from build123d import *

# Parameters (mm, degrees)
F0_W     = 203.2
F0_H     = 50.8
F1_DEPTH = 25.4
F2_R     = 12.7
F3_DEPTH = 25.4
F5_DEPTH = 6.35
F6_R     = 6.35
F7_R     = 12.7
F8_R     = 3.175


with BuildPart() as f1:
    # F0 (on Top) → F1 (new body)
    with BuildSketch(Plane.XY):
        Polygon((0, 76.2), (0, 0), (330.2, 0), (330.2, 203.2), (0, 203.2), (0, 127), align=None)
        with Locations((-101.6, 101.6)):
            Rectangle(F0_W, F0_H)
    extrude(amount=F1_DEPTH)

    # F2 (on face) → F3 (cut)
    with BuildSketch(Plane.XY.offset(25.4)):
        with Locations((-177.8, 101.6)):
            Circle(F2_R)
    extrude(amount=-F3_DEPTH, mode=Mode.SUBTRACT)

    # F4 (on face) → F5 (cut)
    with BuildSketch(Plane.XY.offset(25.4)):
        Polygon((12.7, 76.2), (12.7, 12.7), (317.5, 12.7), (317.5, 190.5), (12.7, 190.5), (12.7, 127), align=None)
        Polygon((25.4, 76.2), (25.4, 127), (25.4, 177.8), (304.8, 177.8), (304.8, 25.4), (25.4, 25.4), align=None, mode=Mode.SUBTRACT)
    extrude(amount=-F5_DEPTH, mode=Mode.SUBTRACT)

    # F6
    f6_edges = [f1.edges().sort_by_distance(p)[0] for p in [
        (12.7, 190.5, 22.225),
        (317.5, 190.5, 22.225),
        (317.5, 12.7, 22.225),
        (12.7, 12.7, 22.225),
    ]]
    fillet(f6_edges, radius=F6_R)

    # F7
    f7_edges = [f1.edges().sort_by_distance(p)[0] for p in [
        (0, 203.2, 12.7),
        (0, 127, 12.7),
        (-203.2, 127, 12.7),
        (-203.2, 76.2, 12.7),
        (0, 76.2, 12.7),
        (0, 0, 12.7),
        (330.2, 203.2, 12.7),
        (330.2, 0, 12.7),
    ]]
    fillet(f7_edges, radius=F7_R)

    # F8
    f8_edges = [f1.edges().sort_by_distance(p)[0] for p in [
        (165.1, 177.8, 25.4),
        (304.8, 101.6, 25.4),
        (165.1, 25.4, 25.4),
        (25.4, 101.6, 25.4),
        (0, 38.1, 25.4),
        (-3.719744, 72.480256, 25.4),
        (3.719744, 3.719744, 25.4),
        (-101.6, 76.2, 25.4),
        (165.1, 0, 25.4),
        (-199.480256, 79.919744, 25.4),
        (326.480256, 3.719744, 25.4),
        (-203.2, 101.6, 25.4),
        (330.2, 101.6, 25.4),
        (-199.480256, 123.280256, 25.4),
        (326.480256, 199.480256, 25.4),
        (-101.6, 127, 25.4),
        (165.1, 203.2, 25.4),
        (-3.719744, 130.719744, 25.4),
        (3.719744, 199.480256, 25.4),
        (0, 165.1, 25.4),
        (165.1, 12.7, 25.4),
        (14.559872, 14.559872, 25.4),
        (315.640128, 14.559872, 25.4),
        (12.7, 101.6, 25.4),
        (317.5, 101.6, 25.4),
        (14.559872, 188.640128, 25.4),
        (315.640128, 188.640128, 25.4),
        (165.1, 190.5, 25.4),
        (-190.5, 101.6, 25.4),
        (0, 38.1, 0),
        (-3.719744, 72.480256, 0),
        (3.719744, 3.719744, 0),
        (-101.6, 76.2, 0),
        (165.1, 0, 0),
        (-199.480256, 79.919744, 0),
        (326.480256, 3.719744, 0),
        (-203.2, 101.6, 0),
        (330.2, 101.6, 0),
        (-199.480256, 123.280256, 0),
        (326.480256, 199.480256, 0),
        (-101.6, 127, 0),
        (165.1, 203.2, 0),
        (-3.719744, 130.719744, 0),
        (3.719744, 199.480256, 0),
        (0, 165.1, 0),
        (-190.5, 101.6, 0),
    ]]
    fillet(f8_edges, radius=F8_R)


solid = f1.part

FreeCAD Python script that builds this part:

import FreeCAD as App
import Part
import Sketcher
from FreeCAD import Vector
Q = App.Units.Quantity


def edges_at(feature, points):
    """Names of the edges that pass closest to the given points."""
    edges = feature.Shape.Edges
    near = lambda p: min(range(len(edges)), key=lambda i: edges[i].distToShape(Part.Vertex(*p))[0])
    return sorted({f"Edge{near(p) + 1}" for p in points})

doc = App.newDocument("Part")
params = doc.addObject("Spreadsheet::Sheet", "Params")
for row, (alias, value) in enumerate([
    ("sketch1_width", "13 in"),
    ("sketch1_width2", "8 in"),
    ("sketch1_height", "3 in"),
    ("pad1_length", "1 in"),
    ("sketch2_diameter", "1 in"),
    ("pocket1_length", "1 in"),
    ("sketch3_width", "12 in"),
    ("sketch3_width2", "11 in"),
    ("sketch3_height", "7 in"),
    ("sketch3_height2", "6 in"),
    ("pocket2_length", "0.25 in"),
    ("fillet_radius", "0.25 in"),
    ("fillet2_radius", "0.5 in"),
    ("fillet3_radius", "0.125 in"),
], start=1):
    params.set(f"A{row}", alias)
    params.set(f"B{row}", "=" + value)
    params.setAlias(f"B{row}", alias)

body = doc.addObject("PartDesign::Body", "Body")

sketch1 = body.newObject("Sketcher::SketchObject", "Sketch")
sketch1.AttachmentSupport = (doc.getObject("XY_Plane"), [""])
sketch1.MapMode = "FlatFace"
sketch1.addGeometry([
    Part.LineSegment(Vector(0, 0, 0), Vector(330.2, 0, 0)),
    Part.LineSegment(Vector(330.2, 0, 0), Vector(330.2, 203.2, 0)),
    Part.LineSegment(Vector(330.2, 203.2, 0), Vector(0, 203.2, 0)),
    Part.LineSegment(Vector(0, 203.2, 0), Vector(0, 127, 0)),
    Part.LineSegment(Vector(0, 127, 0), Vector(-203.2, 127, 0)),
    Part.LineSegment(Vector(-203.2, 127, 0), Vector(-203.2, 76.2, 0)),
    Part.LineSegment(Vector(-203.2, 76.2, 0), Vector(0, 76.2, 0)),
    Part.LineSegment(Vector(0, 76.2, 0), Vector(0, 0, 0)),
], False)
sketch1.addConstraint([
    Sketcher.Constraint("Coincident", 0, 2, 1, 1),
    Sketcher.Constraint("Coincident", 1, 2, 2, 1),
    Sketcher.Constraint("Coincident", 2, 2, 3, 1),
    Sketcher.Constraint("Coincident", 3, 2, 4, 1),
    Sketcher.Constraint("Coincident", 4, 2, 5, 1),
    Sketcher.Constraint("Coincident", 5, 2, 6, 1),
    Sketcher.Constraint("Coincident", 6, 2, 7, 1),
    Sketcher.Constraint("Coincident", 7, 2, 0, 1),
    Sketcher.Constraint("Horizontal", 0),
    Sketcher.Constraint("Vertical", 1),
    Sketcher.Constraint("Horizontal", 2),
    Sketcher.Constraint("Vertical", 3),
    Sketcher.Constraint("Horizontal", 4),
    Sketcher.Constraint("Vertical", 5),
    Sketcher.Constraint("Horizontal", 6),
    Sketcher.Constraint("Vertical", 7),
    Sketcher.Constraint("Coincident", 7, 2, -1, 1),
    Sketcher.Constraint("PointOnObject", 2, 2, -2),
    Sketcher.Constraint("Equal", 6, 1),
    Sketcher.Constraint("Equal", 3, 7),
    Sketcher.Constraint("DistanceX", 0, 1, 0, 2, Q("13 in")),
    Sketcher.Constraint("DistanceX", 4, 2, 4, 1, Q("8 in")),
    Sketcher.Constraint("DistanceY", 3, 2, 3, 1, Q("3 in")),
])
sketch1.setExpression("Constraints[20]", "Params.sketch1_width")
sketch1.setExpression("Constraints[21]", "Params.sketch1_width2")
sketch1.setExpression("Constraints[22]", "Params.sketch1_height")
pad1 = body.newObject("PartDesign::Pad", "Pad")
pad1.Profile = sketch1
pad1.setExpression("Length", "Params.pad1_length")

sketch2 = body.newObject("Sketcher::SketchObject", "Sketch001")
sketch2.AttachmentSupport = (doc.getObject("XY_Plane"), [""])
sketch2.MapMode = "FlatFace"
sketch2.AttachmentOffset = App.Placement(Vector(0, 0, 1 * 25.4), App.Rotation())
sketch2.addGeometry(Part.Circle(Vector(-177.8, 101.6, 0), Vector(0, 0, 1), 12.7), False)
sketch2.addConstraint([
    Sketcher.Constraint("Diameter", 0, Q("1 in")),
    Sketcher.Constraint("DistanceX", 0, 3, -1, 1, Q("7 in")),
    Sketcher.Constraint("DistanceY", -1, 1, 0, 3, Q("4 in")),
])
sketch2.setExpression("Constraints[0]", "Params.sketch2_diameter")
pocket1 = body.newObject("PartDesign::Pocket", "Pocket")
pocket1.Profile = sketch2
pocket1.setExpression("Length", "Params.pocket1_length")

sketch3 = body.newObject("Sketcher::SketchObject", "Sketch002")
sketch3.AttachmentSupport = (doc.getObject("XY_Plane"), [""])
sketch3.MapMode = "FlatFace"
sketch3.AttachmentOffset = App.Placement(Vector(0, 0, 1 * 25.4), App.Rotation())
sketch3.addGeometry([
    Part.LineSegment(Vector(12.7, 12.7, 0), Vector(317.5, 12.7, 0)),
    Part.LineSegment(Vector(317.5, 12.7, 0), Vector(317.5, 190.5, 0)),
    Part.LineSegment(Vector(317.5, 190.5, 0), Vector(12.7, 190.5, 0)),
    Part.LineSegment(Vector(12.7, 190.5, 0), Vector(12.7, 12.7, 0)),
    Part.LineSegment(Vector(25.4, 25.4, 0), Vector(25.4, 177.8, 0)),
    Part.LineSegment(Vector(25.4, 177.8, 0), Vector(304.8, 177.8, 0)),
    Part.LineSegment(Vector(304.8, 177.8, 0), Vector(304.8, 25.4, 0)),
    Part.LineSegment(Vector(304.8, 25.4, 0), Vector(25.4, 25.4, 0)),
], False)
sketch3.addConstraint([
    Sketcher.Constraint("Coincident", 0, 2, 1, 1),
    Sketcher.Constraint("Coincident", 1, 2, 2, 1),
    Sketcher.Constraint("Coincident", 2, 2, 3, 1),
    Sketcher.Constraint("Coincident", 3, 2, 0, 1),
    Sketcher.Constraint("Coincident", 4, 2, 5, 1),
    Sketcher.Constraint("Coincident", 5, 2, 6, 1),
    Sketcher.Constraint("Coincident", 6, 2, 7, 1),
    Sketcher.Constraint("Coincident", 7, 2, 4, 1),
    Sketcher.Constraint("Horizontal", 0),
    Sketcher.Constraint("Vertical", 1),
    Sketcher.Constraint("Horizontal", 2),
    Sketcher.Constraint("Vertical", 3),
    Sketcher.Constraint("Vertical", 4),
    Sketcher.Constraint("Horizontal", 5),
    Sketcher.Constraint("Vertical", 6),
    Sketcher.Constraint("Horizontal", 7),
    Sketcher.Constraint("DistanceX", 0, 1, 0, 2, Q("12 in")),
    Sketcher.Constraint("DistanceX", 5, 1, 5, 2, Q("11 in")),
    Sketcher.Constraint("DistanceY", 1, 1, 1, 2, Q("7 in")),
    Sketcher.Constraint("DistanceY", 4, 1, 4, 2, Q("6 in")),
    Sketcher.Constraint("DistanceX", -1, 1, 4, 2, Q("1 in")),
    Sketcher.Constraint("DistanceY", -1, 1, 4, 2, Q("7 in")),
    Sketcher.Constraint("DistanceX", -1, 1, 0, 2, Q("12.5 in")),
    Sketcher.Constraint("DistanceY", -1, 1, 0, 2, Q("0.5 in")),
])
sketch3.setExpression("Constraints[16]", "Params.sketch3_width")
sketch3.setExpression("Constraints[17]", "Params.sketch3_width2")
sketch3.setExpression("Constraints[18]", "Params.sketch3_height")
sketch3.setExpression("Constraints[19]", "Params.sketch3_height2")
pocket2 = body.newObject("PartDesign::Pocket", "Pocket001")
pocket2.Profile = sketch3
pocket2.setExpression("Length", "Params.pocket2_length")
doc.recompute()

fillet = body.newObject("PartDesign::Fillet", "Fillet")
fillet.Base = (pocket2, edges_at(pocket2, [
    (12.7, 190.5, 22.225),
    (317.5, 190.5, 22.225),
    (317.5, 12.7, 22.225),
    (12.7, 12.7, 22.225),
]))
fillet.setExpression("Radius", "Params.fillet_radius")
doc.recompute()

fillet2 = body.newObject("PartDesign::Fillet", "Fillet001")
fillet2.Base = (fillet, edges_at(fillet, [
    (0, 203.2, 12.7),
    (0, 127, 12.7),
    (-203.2, 127, 12.7),
    (-203.2, 76.2, 12.7),
    (0, 76.2, 12.7),
    (0, 0, 12.7),
    (330.2, 203.2, 12.7),
    (330.2, 0, 12.7),
]))
fillet2.setExpression("Radius", "Params.fillet2_radius")
doc.recompute()

fillet3 = body.newObject("PartDesign::Fillet", "Fillet002")
fillet3.Base = (fillet2, edges_at(fillet2, [
    (165.1, 177.8, 25.4),
    (304.8, 101.6, 25.4),
    (165.1, 25.4, 25.4),
    (25.4, 101.6, 25.4),
    (0, 38.1, 25.4),
    (-3.72, 72.48, 25.4),
    (3.72, 3.72, 25.4),
    (-101.6, 76.2, 25.4),
    (165.1, 0, 25.4),
    (-199.48, 79.92, 25.4),
    (326.48, 3.72, 25.4),
    (-203.2, 101.6, 25.4),
    (330.2, 101.6, 25.4),
    (-199.48, 123.28, 25.4),
    (326.48, 199.48, 25.4),
    (-101.6, 127, 25.4),
    (165.1, 203.2, 25.4),
    (-3.72, 130.72, 25.4),
    (3.72, 199.48, 25.4),
    (0, 165.1, 25.4),
    (165.1, 12.7, 25.4),
    (14.56, 14.56, 25.4),
    (315.64, 14.56, 25.4),
    (12.7, 101.6, 25.4),
    (317.5, 101.6, 25.4),
    (14.56, 188.64, 25.4),
    (315.64, 188.64, 25.4),
    (165.1, 190.5, 25.4),
    (-190.5, 101.6, 25.4),
    (0, 38.1, 0),
    (-3.72, 72.48, 0),
    (3.72, 3.72, 0),
    (-101.6, 76.2, 0),
    (165.1, 0, 0),
    (-199.48, 79.92, 0),
    (326.48, 3.72, 0),
    (-203.2, 101.6, 0),
    (330.2, 101.6, 0),
    (-199.48, 123.28, 0),
    (326.48, 199.48, 0),
    (-101.6, 127, 0),
    (165.1, 203.2, 0),
    (-3.72, 130.72, 0),
    (3.72, 199.48, 0),
    (0, 165.1, 0),
    (-190.5, 101.6, 0),
]))
fillet3.setExpression("Radius", "Params.fillet3_radius")

doc.recompute()
